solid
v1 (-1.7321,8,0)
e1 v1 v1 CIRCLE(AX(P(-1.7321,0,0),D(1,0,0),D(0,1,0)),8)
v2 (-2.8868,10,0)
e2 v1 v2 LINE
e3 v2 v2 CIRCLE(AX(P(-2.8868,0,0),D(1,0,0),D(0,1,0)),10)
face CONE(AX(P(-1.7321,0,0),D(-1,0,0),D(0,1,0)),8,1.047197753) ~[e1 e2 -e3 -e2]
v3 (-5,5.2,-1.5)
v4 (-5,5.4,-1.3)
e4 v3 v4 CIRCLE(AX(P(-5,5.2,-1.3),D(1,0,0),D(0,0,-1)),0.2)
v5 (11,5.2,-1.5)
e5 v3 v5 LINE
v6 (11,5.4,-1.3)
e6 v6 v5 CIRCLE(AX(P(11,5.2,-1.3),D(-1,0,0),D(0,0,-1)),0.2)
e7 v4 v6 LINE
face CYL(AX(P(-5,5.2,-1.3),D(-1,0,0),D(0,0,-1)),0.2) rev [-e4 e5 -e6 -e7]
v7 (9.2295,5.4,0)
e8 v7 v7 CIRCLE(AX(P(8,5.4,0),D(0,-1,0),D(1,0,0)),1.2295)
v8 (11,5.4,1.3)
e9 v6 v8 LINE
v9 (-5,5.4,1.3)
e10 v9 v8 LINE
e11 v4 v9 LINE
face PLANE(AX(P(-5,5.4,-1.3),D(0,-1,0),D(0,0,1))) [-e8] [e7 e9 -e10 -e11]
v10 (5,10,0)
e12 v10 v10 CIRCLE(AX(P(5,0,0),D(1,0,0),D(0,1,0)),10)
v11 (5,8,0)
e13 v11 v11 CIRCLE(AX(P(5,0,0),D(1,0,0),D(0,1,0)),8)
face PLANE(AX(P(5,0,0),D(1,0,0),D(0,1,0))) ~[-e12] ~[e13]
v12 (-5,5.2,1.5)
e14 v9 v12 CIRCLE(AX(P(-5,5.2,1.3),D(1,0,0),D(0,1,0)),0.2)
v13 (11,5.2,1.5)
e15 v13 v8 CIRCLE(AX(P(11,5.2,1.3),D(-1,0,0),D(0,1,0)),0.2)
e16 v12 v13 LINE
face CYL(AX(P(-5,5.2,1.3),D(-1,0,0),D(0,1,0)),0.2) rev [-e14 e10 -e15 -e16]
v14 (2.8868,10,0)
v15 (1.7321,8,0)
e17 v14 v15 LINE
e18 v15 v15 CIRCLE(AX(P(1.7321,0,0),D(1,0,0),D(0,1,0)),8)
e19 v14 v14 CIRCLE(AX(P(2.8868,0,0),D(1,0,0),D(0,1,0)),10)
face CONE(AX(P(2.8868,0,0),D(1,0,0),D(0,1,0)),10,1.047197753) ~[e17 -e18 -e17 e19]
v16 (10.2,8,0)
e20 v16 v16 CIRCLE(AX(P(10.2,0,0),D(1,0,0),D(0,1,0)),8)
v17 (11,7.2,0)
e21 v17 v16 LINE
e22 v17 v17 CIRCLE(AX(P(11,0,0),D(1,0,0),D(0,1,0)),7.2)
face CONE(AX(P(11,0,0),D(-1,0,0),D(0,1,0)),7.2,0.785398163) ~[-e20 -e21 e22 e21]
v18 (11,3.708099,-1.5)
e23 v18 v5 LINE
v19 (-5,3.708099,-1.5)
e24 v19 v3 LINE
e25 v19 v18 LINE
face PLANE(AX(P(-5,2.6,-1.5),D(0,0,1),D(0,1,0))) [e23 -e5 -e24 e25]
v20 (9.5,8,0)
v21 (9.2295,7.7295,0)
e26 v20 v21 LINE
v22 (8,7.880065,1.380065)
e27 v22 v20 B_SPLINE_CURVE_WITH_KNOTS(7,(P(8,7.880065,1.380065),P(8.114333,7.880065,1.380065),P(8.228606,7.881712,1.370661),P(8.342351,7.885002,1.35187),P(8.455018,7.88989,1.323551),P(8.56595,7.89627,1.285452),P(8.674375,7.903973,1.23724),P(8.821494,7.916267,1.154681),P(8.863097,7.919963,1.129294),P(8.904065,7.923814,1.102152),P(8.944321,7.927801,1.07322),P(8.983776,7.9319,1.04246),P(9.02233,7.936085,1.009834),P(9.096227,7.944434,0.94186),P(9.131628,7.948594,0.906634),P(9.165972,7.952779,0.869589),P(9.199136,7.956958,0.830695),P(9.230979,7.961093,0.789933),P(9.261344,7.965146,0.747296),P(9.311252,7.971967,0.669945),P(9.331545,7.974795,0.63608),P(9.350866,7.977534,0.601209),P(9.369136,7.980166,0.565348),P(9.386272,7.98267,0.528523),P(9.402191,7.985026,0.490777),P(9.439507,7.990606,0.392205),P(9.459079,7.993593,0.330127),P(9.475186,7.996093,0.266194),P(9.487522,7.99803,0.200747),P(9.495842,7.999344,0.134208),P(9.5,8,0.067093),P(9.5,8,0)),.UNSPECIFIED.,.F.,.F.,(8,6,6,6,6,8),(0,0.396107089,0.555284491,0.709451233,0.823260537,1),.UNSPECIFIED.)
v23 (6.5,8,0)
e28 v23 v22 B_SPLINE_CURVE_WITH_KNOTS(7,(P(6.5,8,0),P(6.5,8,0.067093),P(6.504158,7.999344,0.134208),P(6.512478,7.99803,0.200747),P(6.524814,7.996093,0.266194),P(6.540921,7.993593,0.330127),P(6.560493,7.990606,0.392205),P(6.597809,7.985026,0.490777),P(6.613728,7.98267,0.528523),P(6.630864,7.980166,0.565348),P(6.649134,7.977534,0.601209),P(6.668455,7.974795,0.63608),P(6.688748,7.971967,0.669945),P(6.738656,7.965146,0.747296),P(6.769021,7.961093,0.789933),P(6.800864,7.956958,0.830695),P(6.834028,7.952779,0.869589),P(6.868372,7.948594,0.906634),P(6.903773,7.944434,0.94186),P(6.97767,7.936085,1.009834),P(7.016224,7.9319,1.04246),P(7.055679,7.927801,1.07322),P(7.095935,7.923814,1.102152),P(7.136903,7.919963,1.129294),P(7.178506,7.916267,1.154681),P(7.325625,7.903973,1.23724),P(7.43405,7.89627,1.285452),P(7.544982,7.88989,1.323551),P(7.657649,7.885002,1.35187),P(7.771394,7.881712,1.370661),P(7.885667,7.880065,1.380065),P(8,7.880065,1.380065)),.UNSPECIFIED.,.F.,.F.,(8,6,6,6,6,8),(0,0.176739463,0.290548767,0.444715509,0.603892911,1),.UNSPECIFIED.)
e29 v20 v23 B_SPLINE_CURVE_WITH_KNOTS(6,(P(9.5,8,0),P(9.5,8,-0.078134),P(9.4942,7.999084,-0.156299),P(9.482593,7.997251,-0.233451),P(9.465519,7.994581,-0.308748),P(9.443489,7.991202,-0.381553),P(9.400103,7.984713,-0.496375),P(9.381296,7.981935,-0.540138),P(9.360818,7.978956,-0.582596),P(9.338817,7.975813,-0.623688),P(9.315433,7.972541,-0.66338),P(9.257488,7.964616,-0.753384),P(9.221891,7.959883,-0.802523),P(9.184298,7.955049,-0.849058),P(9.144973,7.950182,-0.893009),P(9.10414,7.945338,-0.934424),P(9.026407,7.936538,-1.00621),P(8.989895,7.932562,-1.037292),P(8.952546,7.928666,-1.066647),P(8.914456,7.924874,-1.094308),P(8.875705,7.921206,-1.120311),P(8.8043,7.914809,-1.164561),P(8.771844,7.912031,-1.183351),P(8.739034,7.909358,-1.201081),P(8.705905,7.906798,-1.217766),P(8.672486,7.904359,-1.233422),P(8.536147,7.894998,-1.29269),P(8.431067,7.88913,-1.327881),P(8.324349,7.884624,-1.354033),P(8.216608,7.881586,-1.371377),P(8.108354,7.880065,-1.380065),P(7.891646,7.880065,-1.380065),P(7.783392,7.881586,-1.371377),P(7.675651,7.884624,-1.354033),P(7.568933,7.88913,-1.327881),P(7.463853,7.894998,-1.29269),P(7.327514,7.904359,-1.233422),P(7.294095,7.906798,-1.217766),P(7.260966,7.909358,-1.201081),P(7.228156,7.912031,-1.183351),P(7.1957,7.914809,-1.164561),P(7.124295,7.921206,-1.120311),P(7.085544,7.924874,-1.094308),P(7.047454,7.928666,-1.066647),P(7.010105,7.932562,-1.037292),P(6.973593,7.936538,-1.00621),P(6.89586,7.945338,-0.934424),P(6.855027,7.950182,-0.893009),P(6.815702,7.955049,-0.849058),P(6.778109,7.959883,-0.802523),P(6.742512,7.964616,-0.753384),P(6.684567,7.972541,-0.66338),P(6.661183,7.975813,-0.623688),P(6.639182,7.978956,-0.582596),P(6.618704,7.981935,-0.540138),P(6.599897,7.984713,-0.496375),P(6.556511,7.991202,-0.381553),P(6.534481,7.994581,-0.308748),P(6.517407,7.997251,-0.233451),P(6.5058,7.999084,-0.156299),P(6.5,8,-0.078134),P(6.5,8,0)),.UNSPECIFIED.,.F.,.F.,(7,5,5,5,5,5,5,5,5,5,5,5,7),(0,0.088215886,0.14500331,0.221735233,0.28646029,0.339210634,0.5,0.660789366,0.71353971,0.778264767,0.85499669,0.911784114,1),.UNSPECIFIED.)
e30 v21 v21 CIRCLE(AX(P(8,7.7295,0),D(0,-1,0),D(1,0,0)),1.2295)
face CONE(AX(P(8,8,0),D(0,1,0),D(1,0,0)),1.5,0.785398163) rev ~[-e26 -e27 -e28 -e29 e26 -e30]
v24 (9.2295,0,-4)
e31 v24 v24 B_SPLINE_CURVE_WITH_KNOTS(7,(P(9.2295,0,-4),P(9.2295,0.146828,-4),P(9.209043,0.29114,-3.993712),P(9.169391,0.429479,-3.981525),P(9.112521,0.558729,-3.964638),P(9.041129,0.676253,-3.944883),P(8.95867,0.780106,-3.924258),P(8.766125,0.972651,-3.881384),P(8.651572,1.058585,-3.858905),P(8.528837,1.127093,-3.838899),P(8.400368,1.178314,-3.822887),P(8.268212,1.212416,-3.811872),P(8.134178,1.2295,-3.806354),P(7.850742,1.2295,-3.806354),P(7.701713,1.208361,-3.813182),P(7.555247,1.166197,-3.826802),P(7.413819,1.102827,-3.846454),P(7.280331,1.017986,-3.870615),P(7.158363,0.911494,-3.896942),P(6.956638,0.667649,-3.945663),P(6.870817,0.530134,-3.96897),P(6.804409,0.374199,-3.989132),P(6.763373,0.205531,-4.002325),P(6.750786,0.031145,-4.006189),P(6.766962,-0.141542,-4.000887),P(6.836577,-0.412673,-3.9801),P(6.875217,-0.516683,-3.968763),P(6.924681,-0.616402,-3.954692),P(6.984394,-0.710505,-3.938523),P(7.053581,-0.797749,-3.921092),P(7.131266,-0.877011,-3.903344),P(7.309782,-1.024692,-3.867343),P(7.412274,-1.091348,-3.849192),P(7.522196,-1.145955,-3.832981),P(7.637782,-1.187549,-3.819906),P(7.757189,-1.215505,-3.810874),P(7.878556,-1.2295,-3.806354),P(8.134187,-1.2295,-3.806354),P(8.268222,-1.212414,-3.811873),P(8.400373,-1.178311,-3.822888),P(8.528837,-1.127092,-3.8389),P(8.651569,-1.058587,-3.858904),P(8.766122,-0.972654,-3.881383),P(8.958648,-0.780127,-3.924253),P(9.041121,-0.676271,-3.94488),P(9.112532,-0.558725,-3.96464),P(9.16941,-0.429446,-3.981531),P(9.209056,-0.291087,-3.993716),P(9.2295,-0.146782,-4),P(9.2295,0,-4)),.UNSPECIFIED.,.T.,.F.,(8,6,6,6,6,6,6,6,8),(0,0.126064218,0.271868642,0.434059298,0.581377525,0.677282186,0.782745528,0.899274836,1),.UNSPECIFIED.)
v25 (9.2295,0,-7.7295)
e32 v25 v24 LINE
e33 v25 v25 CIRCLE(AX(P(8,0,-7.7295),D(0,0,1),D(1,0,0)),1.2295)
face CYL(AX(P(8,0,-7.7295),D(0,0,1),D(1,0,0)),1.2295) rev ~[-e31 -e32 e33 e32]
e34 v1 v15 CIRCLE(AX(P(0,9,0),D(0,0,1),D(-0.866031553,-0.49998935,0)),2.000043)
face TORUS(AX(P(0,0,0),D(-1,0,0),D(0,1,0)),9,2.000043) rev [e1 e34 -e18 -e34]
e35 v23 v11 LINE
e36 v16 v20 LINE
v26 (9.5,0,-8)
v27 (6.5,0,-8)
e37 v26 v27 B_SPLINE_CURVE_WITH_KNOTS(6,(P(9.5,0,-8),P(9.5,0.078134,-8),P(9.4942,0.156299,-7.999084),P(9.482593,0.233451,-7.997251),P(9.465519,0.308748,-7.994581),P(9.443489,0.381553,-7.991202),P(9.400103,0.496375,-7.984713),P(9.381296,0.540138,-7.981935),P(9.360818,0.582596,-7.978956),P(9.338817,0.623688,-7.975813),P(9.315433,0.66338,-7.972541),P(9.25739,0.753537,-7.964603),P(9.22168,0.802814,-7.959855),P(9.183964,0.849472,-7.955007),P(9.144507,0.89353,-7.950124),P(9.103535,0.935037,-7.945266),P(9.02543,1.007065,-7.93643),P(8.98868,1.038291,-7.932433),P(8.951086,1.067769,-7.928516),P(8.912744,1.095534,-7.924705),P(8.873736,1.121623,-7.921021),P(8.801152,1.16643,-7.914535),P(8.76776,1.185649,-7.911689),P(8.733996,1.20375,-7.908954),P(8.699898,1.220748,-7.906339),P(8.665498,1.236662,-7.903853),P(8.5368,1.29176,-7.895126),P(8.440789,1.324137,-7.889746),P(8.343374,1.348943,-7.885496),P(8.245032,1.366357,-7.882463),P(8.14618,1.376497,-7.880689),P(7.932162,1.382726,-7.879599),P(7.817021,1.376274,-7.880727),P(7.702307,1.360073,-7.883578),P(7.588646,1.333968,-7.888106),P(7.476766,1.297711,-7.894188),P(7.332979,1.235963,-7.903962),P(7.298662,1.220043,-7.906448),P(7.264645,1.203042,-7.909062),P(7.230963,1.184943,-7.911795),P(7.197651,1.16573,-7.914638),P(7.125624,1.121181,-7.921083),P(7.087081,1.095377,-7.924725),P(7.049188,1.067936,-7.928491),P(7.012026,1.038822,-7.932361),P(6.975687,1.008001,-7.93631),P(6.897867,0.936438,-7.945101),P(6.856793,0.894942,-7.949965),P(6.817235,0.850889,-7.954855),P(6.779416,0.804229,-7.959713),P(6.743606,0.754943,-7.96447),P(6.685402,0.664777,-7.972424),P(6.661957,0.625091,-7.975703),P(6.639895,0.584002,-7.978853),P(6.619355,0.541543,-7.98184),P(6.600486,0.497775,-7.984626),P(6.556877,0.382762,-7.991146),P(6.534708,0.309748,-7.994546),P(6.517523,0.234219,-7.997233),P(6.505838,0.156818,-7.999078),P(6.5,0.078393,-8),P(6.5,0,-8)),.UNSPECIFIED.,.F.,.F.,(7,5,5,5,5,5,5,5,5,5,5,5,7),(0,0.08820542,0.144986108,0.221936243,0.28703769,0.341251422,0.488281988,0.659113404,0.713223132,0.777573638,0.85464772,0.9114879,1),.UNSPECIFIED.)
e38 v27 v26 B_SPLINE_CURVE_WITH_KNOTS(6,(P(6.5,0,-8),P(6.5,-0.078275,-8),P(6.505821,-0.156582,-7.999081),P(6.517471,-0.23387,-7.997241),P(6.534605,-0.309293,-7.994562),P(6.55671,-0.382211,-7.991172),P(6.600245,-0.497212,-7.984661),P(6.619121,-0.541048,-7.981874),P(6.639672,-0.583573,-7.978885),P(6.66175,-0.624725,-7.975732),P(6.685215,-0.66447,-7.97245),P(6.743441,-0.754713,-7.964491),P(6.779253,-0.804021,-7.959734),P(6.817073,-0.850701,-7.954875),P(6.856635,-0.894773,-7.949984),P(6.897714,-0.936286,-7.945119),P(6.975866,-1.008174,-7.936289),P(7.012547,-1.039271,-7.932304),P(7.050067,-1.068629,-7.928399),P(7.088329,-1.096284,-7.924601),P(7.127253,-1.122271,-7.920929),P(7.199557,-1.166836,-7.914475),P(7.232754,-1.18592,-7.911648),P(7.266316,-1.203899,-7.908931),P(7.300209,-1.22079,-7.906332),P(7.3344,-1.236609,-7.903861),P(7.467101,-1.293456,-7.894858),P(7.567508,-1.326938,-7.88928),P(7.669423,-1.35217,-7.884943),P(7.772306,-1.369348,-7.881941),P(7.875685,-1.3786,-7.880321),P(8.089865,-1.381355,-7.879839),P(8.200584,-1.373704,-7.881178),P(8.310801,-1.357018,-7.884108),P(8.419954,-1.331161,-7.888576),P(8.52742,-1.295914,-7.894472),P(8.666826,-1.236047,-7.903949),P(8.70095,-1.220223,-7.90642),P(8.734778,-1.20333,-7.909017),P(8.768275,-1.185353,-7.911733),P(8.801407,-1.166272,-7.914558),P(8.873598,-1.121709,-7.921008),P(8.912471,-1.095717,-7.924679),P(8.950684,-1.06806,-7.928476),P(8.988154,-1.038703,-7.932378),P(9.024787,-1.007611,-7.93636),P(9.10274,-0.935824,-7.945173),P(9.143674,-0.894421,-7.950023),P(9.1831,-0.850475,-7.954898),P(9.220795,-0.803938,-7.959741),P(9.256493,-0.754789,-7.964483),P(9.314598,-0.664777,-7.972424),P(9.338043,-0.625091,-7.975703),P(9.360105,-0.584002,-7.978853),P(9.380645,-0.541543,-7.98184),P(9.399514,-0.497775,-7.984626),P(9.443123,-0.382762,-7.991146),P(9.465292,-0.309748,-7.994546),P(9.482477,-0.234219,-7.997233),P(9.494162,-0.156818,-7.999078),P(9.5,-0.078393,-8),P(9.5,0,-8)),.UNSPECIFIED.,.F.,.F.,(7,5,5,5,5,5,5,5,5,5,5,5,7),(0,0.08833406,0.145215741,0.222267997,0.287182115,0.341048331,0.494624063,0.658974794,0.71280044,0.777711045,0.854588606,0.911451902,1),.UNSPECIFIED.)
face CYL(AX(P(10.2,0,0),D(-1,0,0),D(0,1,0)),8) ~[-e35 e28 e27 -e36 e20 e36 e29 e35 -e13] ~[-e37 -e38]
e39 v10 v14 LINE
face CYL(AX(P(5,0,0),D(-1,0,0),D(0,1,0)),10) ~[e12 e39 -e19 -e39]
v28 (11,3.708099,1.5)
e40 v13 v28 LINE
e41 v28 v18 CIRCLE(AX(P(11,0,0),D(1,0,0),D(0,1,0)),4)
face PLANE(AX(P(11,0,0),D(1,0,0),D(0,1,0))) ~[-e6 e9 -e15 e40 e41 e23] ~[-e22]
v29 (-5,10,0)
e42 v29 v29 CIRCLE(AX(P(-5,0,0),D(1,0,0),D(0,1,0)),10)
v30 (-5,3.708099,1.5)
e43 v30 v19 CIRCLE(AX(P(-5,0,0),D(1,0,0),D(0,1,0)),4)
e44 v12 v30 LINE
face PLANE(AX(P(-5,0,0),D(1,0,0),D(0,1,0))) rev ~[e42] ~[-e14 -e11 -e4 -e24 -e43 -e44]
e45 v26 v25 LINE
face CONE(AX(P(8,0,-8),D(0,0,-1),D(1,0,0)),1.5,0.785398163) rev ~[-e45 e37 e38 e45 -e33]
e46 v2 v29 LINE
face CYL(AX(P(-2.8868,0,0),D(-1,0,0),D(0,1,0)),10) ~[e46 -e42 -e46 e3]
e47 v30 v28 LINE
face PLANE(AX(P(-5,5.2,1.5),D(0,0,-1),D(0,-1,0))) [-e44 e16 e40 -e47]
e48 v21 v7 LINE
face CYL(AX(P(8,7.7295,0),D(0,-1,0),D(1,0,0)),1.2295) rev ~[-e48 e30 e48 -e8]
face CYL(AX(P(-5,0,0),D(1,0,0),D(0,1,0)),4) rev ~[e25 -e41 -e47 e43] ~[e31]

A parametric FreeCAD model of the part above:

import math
import FreeCAD as App
import Part
import Sketcher
from FreeCAD import Vector
Q = App.Units.Quantity


def add_polygon(sketch, points):
    """Adds a closed chain of lines whose ends are joined by coincident constraints."""
    first, n = sketch.GeometryCount, len(points)
    for a, b in zip(points, points[1:] + points[:1]):
        sketch.addGeometry(Part.LineSegment(App.Vector(*a, 0), App.Vector(*b, 0)), False)
    for i in range(n):
        sketch.addConstraint(Sketcher.Constraint("Coincident", first + i, 2, first + (i + 1) % n, 1))

doc = App.newDocument("Part")
body = doc.addObject("PartDesign::Body", "Body")

# Sketch on XY plane
sketch1 = body.newObject("Sketcher::SketchObject", "Sketch")
sketch1.AttachmentSupport = (doc.getObject("XY_Plane"), [""])
sketch1.MapMode = "FlatFace"
sketch1.addGeometry(Part.LineSegment(Vector(-2.9, 10, 0), Vector(-5, 10, 0)), False)
sketch1.addGeometry(Part.LineSegment(Vector(-5, 10, 0), Vector(-5, 4, 0)), False)
sketch1.addGeometry(Part.LineSegment(Vector(-5, 4, 0), Vector(11, 4, 0)), False)
sketch1.addGeometry(Part.LineSegment(Vector(11, 4, 0), Vector(11, 7.2, 0)), False)
sketch1.addGeometry(Part.LineSegment(Vector(11, 7.2, 0), Vector(10.2, 8, 0)), False)
sketch1.addGeometry(Part.LineSegment(Vector(10.2, 8, 0), Vector(5, 8, 0)), False)
sketch1.addGeometry(Part.LineSegment(Vector(5, 8, 0), Vector(5, 10, 0)), False)
sketch1.addGeometry(Part.LineSegment(Vector(5, 10, 0), Vector(2.9, 10, 0)), False)
sketch1.addGeometry(Part.LineSegment(Vector(2.9, 10, 0), Vector(1.7, 8, 0)), False)
sketch1.addGeometry(Part.ArcOfCircle(Part.Circle(Vector(0, 9, 0), Vector(0, 0, 1), 2), math.radians(-150), math.radians(-30)), False)
sketch1.addGeometry(Part.LineSegment(Vector(-1.7, 8, 0), Vector(-2.9, 10, 0)), False)
sketch1.addConstraint(Sketcher.Constraint("Coincident", 0, 2, 1, 1))
sketch1.addConstraint(Sketcher.Constraint("Coincident", 1, 2, 2, 1))
sketch1.addConstraint(Sketcher.Constraint("Coincident", 2, 2, 3, 1))
sketch1.addConstraint(Sketcher.Constraint("Coincident", 3, 2, 4, 1))
sketch1.addConstraint(Sketcher.Constraint("Coincident", 4, 2, 5, 1))
sketch1.addConstraint(Sketcher.Constraint("Coincident", 5, 2, 6, 1))
sketch1.addConstraint(Sketcher.Constraint("Coincident", 6, 2, 7, 1))
sketch1.addConstraint(Sketcher.Constraint("Coincident", 7, 2, 8, 1))
sketch1.addConstraint(Sketcher.Constraint("Tangent", 8, 2, 9, 2))
sketch1.addConstraint(Sketcher.Constraint("Tangent", 9, 1, 10, 1))
sketch1.addConstraint(Sketcher.Constraint("Coincident", 10, 2, 0, 1))
sketch1.addConstraint(Sketcher.Constraint("Horizontal", 0))
sketch1.addConstraint(Sketcher.Constraint("Vertical", 1))
sketch1.addConstraint(Sketcher.Constraint("Horizontal", 2))
sketch1.addConstraint(Sketcher.Constraint("Vertical", 3))
sketch1.addConstraint(Sketcher.Constraint("Horizontal", 5))
sketch1.addConstraint(Sketcher.Constraint("Vertical", 6))
sketch1.addConstraint(Sketcher.Constraint("Horizontal", 7))
sketch1.addConstraint(Sketcher.Constraint("Symmetric", 0, 2, 6, 2, -2))
sketch1.addConstraint(Sketcher.Constraint("Symmetric", 8, 2, 9, 1, -2))
sketch1.addConstraint(Sketcher.Constraint("Horizontal", 5, 2, 8, 2))
sketch1.addConstraint(Sketcher.Constraint("Radius", 9, 2.0))
sketch1.addConstraint(Sketcher.Constraint("DistanceX", 2, 1, 2, 2, 16.0))
sketch1.addConstraint(Sketcher.Constraint("DistanceY", 1, 2, 1, 1, 6.0))
sketch1.addConstraint(Sketcher.Constraint("DistanceY", 6, 1, 6, 2, 2.0))
sketch1.addConstraint(Sketcher.Constraint("Angle", 4, Q("135 deg")))
sketch1.addConstraint(Sketcher.Constraint("Angle", 8, Q("-120 deg")))
sketch1.addConstraint(Sketcher.Constraint("DistanceX", 5, 2, 5, 1, 5.2))
sketch1.addConstraint(Sketcher.Constraint("DistanceY", 3, 1, 3, 2, 3.2))
sketch1.addConstraint(Sketcher.Constraint("DistanceY", -1, 1, 9, 3, 9.0))
revolution = body.newObject("PartDesign::Revolution", "Revolution")
revolution.Profile = sketch1
revolution.ReferenceAxis = (sketch1, ["H_Axis"])
revolution.Angle = 360

# Sketch on YZ plane
sketch2 = body.newObject("Sketcher::SketchObject", "Sketch001")
sketch2.AttachmentSupport = (doc.getObject("YZ_Plane"), [""])
sketch2.MapMode = "FlatFace"
sketch2.AttachmentOffset = App.Placement(Vector(0, 0, -5), App.Rotation())
sketch2.addGeometry(Part.LineSegment(Vector(5.2, 1.5, 0), Vector(2.6, 1.5, 0)), False)
sketch2.addGeometry(Part.LineSegment(Vector(2.6, 1.5, 0), Vector(2.6, -1.5, 0)), False)
sketch2.addGeometry(Part.LineSegment(Vector(2.6, -1.5, 0), Vector(5.2, -1.5, 0)), False)
sketch2.addGeometry(Part.ArcOfCircle(Part.Circle(Vector(5.2, -1.3, 0), Vector(0, 0, 1), 0.2), math.radians(-90), math.radians(0)), False)
sketch2.addGeometry(Part.LineSegment(Vector(5.4, -1.3, 0), Vector(5.4, 1.3, 0)), False)
sketch2.addGeometry(Part.ArcOfCircle(Part.Circle(Vector(5.2, 1.3, 0), Vector(0, 0, 1), 0.2), math.radians(0), math.radians(90)), False)
sketch2.addConstraint(Sketcher.Constraint("Coincident", 0, 2, 1, 1))
sketch2.addConstraint(Sketcher.Constraint("Coincident", 1, 2, 2, 1))
sketch2.addConstraint(Sketcher.Constraint("Tangent", 2, 2, 3, 1))
sketch2.addConstraint(Sketcher.Constraint("Tangent", 3, 2, 4, 1))
sketch2.addConstraint(Sketcher.Constraint("Tangent", 4, 2, 5, 1))
sketch2.addConstraint(Sketcher.Constraint("Tangent", 5, 2, 0, 1))
sketch2.addConstraint(Sketcher.Constraint("Horizontal", 0))
sketch2.addConstraint(Sketcher.Constraint("Vertical", 1))
sketch2.addConstraint(Sketcher.Constraint("Horizontal", 2))
sketch2.addConstraint(Sketcher.Constraint("Vertical", 4))
sketch2.addConstraint(Sketcher.Constraint("Equal", 3, 5))
sketch2.addConstraint(Sketcher.Constraint("Equal", 2, 4))
sketch2.addConstraint(Sketcher.Constraint("Radius", 3, 0.2))
sketch2.addConstraint(Sketcher.Constraint("DistanceY", 1, 2, 1, 1, 3.0))
sketch2.addConstraint(Sketcher.Constraint("DistanceX", -1, 1, 3, 3, 5.2))
sketch2.addConstraint(Sketcher.Constraint("DistanceY", 3, 3, -1, 1, 1.3))
pocket1 = body.newObject("PartDesign::Pocket", "Pocket")
pocket1.Profile = sketch2
pocket1.Length = 30
pocket1.Reversed = True

# Sketch on XY plane
sketch3 = body.newObject("Sketcher::SketchObject", "Sketch002")
sketch3.AttachmentSupport = (doc.getObject("XY_Plane"), [""])
sketch3.MapMode = "FlatFace"
add_polygon(sketch3, [(8, 8), (8, 5.4), (9.23, 5.4), (9.23, 7.73), (9.5, 8)])  # lines 0-4
sketch3.addGeometry(Part.LineSegment(Vector(8, 8, 0), Vector(8, 5.4, 0)), True)  # axis
sketch3.addConstraint(Sketcher.Constraint("Vertical", 0))
sketch3.addConstraint(Sketcher.Constraint("Horizontal", 1))
sketch3.addConstraint(Sketcher.Constraint("Vertical", 2))
sketch3.addConstraint(Sketcher.Constraint("Horizontal", 4))
sketch3.addConstraint(Sketcher.Constraint("Vertical", 5))
sketch3.addConstraint(Sketcher.Constraint("Coincident", 5, 1, 4, 2))
sketch3.addConstraint(Sketcher.Constraint("Horizontal", 1, 2, 5, 2))
sketch3.addConstraint(Sketcher.Constraint("Angle", 3, Q("45 deg")))
sketch3.addConstraint(Sketcher.Constraint("DistanceX", 4, 2, 4, 1, 1.5))
sketch3.addConstraint(Sketcher.Constraint("DistanceY", 0, 2, 0, 1, 2.6))
sketch3.addConstraint(Sketcher.Constraint("DistanceX", -1, 1, 0, 2, 8.0))
sketch3.addConstraint(Sketcher.Constraint("DistanceY", -1, 1, 3, 2, 8.0))
sketch3.addConstraint(Sketcher.Constraint("DistanceX", 1, 1, 1, 2, 1.2295))
groove = body.newObject("PartDesign::Groove", "Groove")
groove.Profile = sketch3
groove.ReferenceAxis = (sketch3, ["Axis0"])
groove.Angle = 360

# Sketch on XZ plane
sketch4 = body.newObject("Sketcher::SketchObject", "Sketch003")
sketch4.AttachmentSupport = (doc.getObject("XZ_Plane"), [""])
sketch4.MapMode = "FlatFace"
add_polygon(sketch4, [(8, -8), (8, -3), (9.23, -3), (9.23, -7.73), (9.5, -8)])  # lines 0-4
sketch4.addGeometry(Part.LineSegment(Vector(8, -8, 0), Vector(8, -3, 0)), True)  # axis
sketch4.addConstraint(Sketcher.Constraint("Vertical", 0))
sketch4.addConstraint(Sketcher.Constraint("Horizontal", 1))
sketch4.addConstraint(Sketcher.Constraint("Vertical", 2))
sketch4.addConstraint(Sketcher.Constraint("Horizontal", 4))
sketch4.addConstraint(Sketcher.Constraint("Vertical", 5))
sketch4.addConstraint(Sketcher.Constraint("Coincident", 5, 1, 4, 2))
sketch4.addConstraint(Sketcher.Constraint("Horizontal", 1, 2, 5, 2))
sketch4.addConstraint(Sketcher.Constraint("DistanceY", 0, 1, 0, 2, 5.0))
sketch4.addConstraint(Sketcher.Constraint("Angle", 3, Q("-45 deg")))
sketch4.addConstraint(Sketcher.Constraint("DistanceX", 4, 2, 4, 1, 1.5))
sketch4.addConstraint(Sketcher.Constraint("DistanceX", -1, 1, 0, 2, 8.0))
sketch4.addConstraint(Sketcher.Constraint("DistanceY", 0, 2, -1, 1, 3.0))
sketch4.addConstraint(Sketcher.Constraint("DistanceX", 1, 1, 1, 2, 1.2295))
groove2 = body.newObject("PartDesign::Groove", "Groove001")
groove2.Profile = sketch4
groove2.ReferenceAxis = (sketch4, ["Axis0"])
groove2.Angle = 360

doc.recompute()
